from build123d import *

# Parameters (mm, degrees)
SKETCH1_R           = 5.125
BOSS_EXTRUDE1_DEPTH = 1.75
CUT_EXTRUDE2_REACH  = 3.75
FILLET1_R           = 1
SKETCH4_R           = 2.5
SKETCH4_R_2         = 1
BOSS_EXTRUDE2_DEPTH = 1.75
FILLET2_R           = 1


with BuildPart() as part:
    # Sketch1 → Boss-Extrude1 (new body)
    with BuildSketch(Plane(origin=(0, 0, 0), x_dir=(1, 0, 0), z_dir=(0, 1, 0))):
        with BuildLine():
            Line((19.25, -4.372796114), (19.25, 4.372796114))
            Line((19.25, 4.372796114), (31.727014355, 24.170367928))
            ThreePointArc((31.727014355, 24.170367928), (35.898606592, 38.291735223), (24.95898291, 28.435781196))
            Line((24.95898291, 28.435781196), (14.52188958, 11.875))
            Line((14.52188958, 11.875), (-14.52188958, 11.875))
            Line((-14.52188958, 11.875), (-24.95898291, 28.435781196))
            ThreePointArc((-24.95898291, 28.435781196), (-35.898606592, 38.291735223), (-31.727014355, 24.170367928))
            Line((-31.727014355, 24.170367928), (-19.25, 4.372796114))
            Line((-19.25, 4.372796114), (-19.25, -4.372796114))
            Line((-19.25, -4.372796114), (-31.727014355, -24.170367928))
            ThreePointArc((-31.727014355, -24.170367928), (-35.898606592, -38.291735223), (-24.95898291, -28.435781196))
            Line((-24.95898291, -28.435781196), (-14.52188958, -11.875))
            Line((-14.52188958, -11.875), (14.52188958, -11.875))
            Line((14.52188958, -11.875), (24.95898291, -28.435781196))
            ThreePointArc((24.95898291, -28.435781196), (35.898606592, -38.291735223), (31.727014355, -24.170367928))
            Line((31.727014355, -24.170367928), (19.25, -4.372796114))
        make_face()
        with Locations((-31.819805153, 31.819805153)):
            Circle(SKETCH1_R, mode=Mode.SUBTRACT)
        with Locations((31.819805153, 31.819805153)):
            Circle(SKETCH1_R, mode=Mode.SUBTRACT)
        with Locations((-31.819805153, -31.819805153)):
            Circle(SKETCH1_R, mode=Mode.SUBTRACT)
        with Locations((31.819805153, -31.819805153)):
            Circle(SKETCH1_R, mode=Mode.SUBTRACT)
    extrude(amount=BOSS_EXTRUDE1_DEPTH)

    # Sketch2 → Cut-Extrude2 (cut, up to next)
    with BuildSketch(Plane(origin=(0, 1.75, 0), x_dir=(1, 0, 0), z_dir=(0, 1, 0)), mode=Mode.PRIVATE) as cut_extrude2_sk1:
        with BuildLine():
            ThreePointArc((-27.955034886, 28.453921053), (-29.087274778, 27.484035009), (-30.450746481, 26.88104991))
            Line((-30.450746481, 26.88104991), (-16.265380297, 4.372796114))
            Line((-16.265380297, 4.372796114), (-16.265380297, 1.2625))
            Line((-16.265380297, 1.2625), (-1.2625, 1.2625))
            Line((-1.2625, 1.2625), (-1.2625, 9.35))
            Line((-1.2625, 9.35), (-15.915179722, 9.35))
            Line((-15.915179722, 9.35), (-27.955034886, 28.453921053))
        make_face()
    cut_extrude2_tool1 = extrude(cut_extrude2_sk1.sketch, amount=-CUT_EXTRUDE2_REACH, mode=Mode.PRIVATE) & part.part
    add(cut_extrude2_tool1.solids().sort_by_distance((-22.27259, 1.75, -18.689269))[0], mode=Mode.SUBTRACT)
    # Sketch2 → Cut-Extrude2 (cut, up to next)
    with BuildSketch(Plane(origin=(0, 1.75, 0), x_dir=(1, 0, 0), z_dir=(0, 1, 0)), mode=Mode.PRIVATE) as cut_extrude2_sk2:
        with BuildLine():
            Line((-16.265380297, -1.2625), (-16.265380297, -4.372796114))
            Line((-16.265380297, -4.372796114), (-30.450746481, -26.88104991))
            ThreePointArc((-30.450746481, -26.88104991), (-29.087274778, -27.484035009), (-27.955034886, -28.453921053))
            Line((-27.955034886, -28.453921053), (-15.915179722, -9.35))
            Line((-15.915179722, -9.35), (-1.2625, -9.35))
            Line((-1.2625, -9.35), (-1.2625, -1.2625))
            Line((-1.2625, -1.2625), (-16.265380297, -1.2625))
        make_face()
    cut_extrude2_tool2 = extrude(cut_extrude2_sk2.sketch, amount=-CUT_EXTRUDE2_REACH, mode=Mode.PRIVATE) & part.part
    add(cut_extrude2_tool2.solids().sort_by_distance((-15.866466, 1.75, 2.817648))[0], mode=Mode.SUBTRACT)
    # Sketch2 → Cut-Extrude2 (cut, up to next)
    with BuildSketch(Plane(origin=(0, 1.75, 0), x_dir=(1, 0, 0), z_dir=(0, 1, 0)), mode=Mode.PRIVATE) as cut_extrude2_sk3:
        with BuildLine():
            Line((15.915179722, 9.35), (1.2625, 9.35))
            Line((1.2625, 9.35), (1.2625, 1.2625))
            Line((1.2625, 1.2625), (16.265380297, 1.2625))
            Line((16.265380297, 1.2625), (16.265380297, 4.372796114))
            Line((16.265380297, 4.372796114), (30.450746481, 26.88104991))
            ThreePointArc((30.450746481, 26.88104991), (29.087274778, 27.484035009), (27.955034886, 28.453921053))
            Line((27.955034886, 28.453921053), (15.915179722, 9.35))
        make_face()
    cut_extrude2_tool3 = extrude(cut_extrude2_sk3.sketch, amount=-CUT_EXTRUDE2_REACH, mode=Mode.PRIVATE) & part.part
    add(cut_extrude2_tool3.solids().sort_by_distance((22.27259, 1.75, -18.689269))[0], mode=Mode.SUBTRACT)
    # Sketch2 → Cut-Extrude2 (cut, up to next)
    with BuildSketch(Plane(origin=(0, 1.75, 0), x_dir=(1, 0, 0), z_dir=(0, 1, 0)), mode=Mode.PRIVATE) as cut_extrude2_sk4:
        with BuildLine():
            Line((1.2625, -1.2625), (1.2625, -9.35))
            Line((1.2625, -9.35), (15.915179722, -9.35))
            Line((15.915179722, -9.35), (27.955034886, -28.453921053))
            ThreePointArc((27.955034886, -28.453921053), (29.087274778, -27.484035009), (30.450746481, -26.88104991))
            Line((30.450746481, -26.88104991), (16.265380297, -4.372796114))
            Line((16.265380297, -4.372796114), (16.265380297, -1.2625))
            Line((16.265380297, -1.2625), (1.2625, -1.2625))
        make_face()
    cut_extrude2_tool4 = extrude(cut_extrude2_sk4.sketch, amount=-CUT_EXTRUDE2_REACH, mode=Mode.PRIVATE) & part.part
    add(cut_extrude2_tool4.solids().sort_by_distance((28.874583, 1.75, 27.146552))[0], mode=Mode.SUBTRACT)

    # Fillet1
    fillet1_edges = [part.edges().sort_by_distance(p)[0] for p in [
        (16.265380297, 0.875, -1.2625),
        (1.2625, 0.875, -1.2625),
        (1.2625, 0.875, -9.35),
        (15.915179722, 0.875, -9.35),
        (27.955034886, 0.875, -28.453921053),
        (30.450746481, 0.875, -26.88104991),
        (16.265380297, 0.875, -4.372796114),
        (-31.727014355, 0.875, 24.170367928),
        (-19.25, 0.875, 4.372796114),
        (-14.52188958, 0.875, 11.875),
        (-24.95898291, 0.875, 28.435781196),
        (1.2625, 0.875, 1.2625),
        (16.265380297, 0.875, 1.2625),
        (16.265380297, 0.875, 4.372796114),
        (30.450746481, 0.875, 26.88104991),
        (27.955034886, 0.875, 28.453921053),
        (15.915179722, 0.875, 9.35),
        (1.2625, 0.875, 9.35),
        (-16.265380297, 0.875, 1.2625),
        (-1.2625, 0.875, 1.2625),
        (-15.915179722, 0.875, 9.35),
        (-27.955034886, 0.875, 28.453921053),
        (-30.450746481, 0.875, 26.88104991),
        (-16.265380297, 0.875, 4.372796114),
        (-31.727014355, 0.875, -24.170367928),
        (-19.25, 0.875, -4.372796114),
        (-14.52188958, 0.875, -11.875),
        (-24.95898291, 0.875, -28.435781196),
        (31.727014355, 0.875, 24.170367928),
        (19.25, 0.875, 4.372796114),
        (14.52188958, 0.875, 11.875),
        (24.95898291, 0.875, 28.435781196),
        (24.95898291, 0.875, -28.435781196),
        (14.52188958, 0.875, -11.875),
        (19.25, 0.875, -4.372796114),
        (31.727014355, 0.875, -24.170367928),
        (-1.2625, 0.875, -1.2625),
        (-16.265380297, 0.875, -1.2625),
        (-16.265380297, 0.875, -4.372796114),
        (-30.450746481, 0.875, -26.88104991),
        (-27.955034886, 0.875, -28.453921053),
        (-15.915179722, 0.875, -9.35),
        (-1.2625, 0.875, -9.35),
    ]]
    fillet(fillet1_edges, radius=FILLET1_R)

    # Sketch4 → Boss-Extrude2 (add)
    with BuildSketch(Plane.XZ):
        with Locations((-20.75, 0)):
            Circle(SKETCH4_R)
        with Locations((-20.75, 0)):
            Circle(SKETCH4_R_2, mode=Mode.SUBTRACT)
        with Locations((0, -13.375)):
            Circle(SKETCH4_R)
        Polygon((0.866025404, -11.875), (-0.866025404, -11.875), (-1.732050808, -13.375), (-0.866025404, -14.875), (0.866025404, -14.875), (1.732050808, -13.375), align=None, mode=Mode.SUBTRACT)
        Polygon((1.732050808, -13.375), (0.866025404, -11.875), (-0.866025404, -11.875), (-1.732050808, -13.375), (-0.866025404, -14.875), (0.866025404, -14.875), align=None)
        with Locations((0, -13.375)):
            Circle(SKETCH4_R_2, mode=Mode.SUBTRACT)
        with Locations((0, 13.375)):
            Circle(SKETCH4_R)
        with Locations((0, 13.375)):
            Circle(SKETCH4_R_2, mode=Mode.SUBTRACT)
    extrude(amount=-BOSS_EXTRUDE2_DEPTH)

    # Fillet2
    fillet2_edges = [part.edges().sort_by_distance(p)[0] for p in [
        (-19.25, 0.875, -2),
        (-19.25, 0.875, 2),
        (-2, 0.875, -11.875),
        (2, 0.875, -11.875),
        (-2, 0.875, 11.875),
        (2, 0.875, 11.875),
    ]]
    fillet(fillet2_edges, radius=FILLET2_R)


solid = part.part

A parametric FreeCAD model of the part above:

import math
import FreeCAD as App
import Part
import Sketcher
Q = App.Units.Quantity


def edges_at(feature, points):
    """Names of the edges that pass closest to the given points."""
    edges = feature.Shape.Edges
    near = lambda p: min(range(len(edges)), key=lambda i: edges[i].distToShape(Part.Vertex(*p))[0])
    return sorted({f"Edge{near(p) + 1}" for p in points})

doc = App.newDocument("Part")
body = doc.addObject("PartDesign::Body", "Body")

# Sketch on XZ plane
sketch1 = body.newObject("Sketcher::SketchObject", "Sketch")
sketch1.AttachmentSupport = (doc.getObject("XZ_Plane"), [""])
sketch1.MapMode = "FlatFace"
sketch1.addGeometry([
    Part.LineSegment(App.Vector(19.25, 4.372796, 0), App.Vector(19.25, -4.372796, 0)),  # 0
    Part.LineSegment(App.Vector(19.25, -4.372796, 0), App.Vector(31.727014, -24.170368, 0)),  # 1
    Part.ArcOfCircle(Part.Circle(App.Vector(31.819805, -31.819805, 0), App.Vector(0, 0, 1), 7.65), math.radians(153.745695), math.radians(450.694987)),  # 2
    Part.LineSegment(App.Vector(24.958983, -28.435781, 0), App.Vector(14.52189, -11.875, 0)),  # 3
    Part.LineSegment(App.Vector(14.52189, -11.875, 0), App.Vector(-14.52189, -11.875, 0)),  # 4
    Part.LineSegment(App.Vector(-14.52189, -11.875, 0), App.Vector(-24.958983, -28.435781, 0)),  # 5
    Part.ArcOfCircle(Part.Circle(App.Vector(-31.819805, -31.819805, 0), App.Vector(0, 0, 1), 7.65), math.radians(89.305013), math.radians(386.254305)),  # 6
    Part.LineSegment(App.Vector(-31.727014, -24.170368, 0), App.Vector(-19.25, -4.372796, 0)),  # 7
    Part.LineSegment(App.Vector(-19.25, -4.372796, 0), App.Vector(-19.25, 4.372796, 0)),  # 8
    Part.LineSegment(App.Vector(-19.25, 4.372796, 0), App.Vector(-31.727014, 24.170368, 0)),  # 9
    Part.ArcOfCircle(Part.Circle(App.Vector(-31.819805, 31.819805, 0), App.Vector(0, 0, 1), 7.65), math.radians(-26.254305), math.radians(270.694987)),  # 10
    Part.LineSegment(App.Vector(-24.958983, 28.435781, 0), App.Vector(-14.52189, 11.875, 0)),  # 11
    Part.LineSegment(App.Vector(-14.52189, 11.875, 0), App.Vector(14.52189, 11.875, 0)),  # 12
    Part.LineSegment(App.Vector(14.52189, 11.875, 0), App.Vector(24.958983, 28.435781, 0)),  # 13
    Part.ArcOfCircle(Part.Circle(App.Vector(31.819805, 31.819805, 0), App.Vector(0, 0, 1), 7.65), math.radians(-90.694987), math.radians(206.254305)),  # 14
    Part.LineSegment(App.Vector(31.727014, 24.170368, 0), App.Vector(19.25, 4.372796, 0)),  # 15
    Part.Circle(App.Vector(-31.819805, 31.819805, 0), App.Vector(0, 0, 1), 5.125),  # 16
    Part.Circle(App.Vector(31.819805, 31.819805, 0), App.Vector(0, 0, 1), 5.125),  # 17
    Part.Circle(App.Vector(-31.819805, -31.819805, 0), App.Vector(0, 0, 1), 5.125),  # 18
    Part.Circle(App.Vector(31.819805, -31.819805, 0), App.Vector(0, 0, 1), 5.125),  # 19
], False)
sketch1.addConstraint([
    Sketcher.Constraint("Coincident", 0, 2, 1, 1),
    Sketcher.Constraint("Coincident", 1, 2, 2, 2),
    Sketcher.Constraint("Coincident", 2, 1, 3, 1),
    Sketcher.Constraint("Coincident", 3, 2, 4, 1),
    Sketcher.Constraint("Coincident", 4, 2, 5, 1),
    Sketcher.Constraint("Coincident", 5, 2, 6, 2),
    Sketcher.Constraint("Coincident", 6, 1, 7, 1),
    Sketcher.Constraint("Coincident", 7, 2, 8, 1),
    Sketcher.Constraint("Coincident", 8, 2, 9, 1),
    Sketcher.Constraint("Coincident", 9, 2, 10, 2),
    Sketcher.Constraint("Coincident", 10, 1, 11, 1),
    Sketcher.Constraint("Coincident", 11, 2, 12, 1),
    Sketcher.Constraint("Coincident", 12, 2, 13, 1),
    Sketcher.Constraint("Coincident", 13, 2, 14, 2),
    Sketcher.Constraint("Coincident", 14, 1, 15, 1),
    Sketcher.Constraint("Coincident", 15, 2, 0, 1),
    Sketcher.Constraint("Vertical", 0),
    Sketcher.Constraint("Horizontal", 4),
    Sketcher.Constraint("Vertical", 8),
    Sketcher.Constraint("Horizontal", 12),
    Sketcher.Constraint("Coincident", 16, 3, 10, 3),
    Sketcher.Constraint("Coincident", 17, 3, 14, 3),
    Sketcher.Constraint("Coincident", 18, 3, 6, 3),
    Sketcher.Constraint("Coincident", 19, 3, 2, 3),
    Sketcher.Constraint("Equal", 2, 6),
    Sketcher.Constraint("Equal", 6, 10),
    Sketcher.Constraint("Equal", 10, 14),
    Sketcher.Constraint("Equal", 16, 17),
    Sketcher.Constraint("Equal", 17, 18),
    Sketcher.Constraint("Equal", 18, 19),
    Sketcher.Constraint("Symmetric", 2, 3, 10, 3, -1, 1),
    Sketcher.Constraint("Symmetric", 6, 3, 14, 3, -1, 1),
    Sketcher.Constraint("Symmetric", 0, 2, 8, 2, -1, 1),
    Sketcher.Constraint("Symmetric", 3, 2, 11, 2, -1, 1),
    Sketcher.Constraint("Symmetric", 2, 3, 6, 3, -2),
    Sketcher.Constraint("Parallel", 1, 3),
    Sketcher.Constraint("Parallel", 5, 7),
    Sketcher.Constraint("Parallel", 3, 9),
    Sketcher.Constraint("Parallel", 9, 11),
    Sketcher.Constraint("Parallel", 7, 13),
    Sketcher.Constraint("Parallel", 13, 15),
    Sketcher.Constraint("Horizontal", 2, 1, 5, 2),
    Sketcher.Constraint("Horizontal", 1, 2, 6, 1),
    Sketcher.Constraint("Horizontal", 0, 2, 7, 2),
    Sketcher.Constraint("Horizontal", 10, 1, 13, 2),
    Sketcher.Constraint("Horizontal", 9, 2, 14, 1),
    Sketcher.Constraint("Diameter", 16, Q("10.25 mm")),
    Sketcher.Constraint("Radius", 2, Q("7.65 mm")),
    Sketcher.Constraint("DistanceX", -1, 1, 0, 2, Q("19.25 mm")),
    Sketcher.Constraint("DistanceY", 4, 2, 11, 2, Q("23.75 mm")),
    Sketcher.Constraint("Distance", 3, Q("19.575301 mm")),
    Sketcher.Constraint("DistanceX", 4, 2, 4, 1, Q("29.043779 mm")),
    Sketcher.Constraint("DistanceY", 0, 2, 17, 3, Q("36.192601 mm")),
    Sketcher.Constraint("DistanceY", 0, 2, 0, 1, Q("8.745592 mm")),
    Sketcher.Constraint("DistanceY", 2, 1, -1, 1, Q("28.435781 mm")),
])
pad1 = body.newObject("PartDesign::Pad", "Pad")
pad1.Profile = sketch1
pad1.Length = 1.75
pad1.Reversed = True

# Sketch on XZ plane
sketch2 = body.newObject("Sketcher::SketchObject", "Sketch001")
sketch2.AttachmentSupport = (doc.getObject("XZ_Plane"), [""])
sketch2.MapMode = "FlatFace"
sketch2.AttachmentOffset = App.Placement(App.Vector(0, 0, -1.75), App.Rotation())
sketch2.addGeometry([
    Part.ArcOfCircle(Part.Circle(App.Vector(-31.8, -31.8, 0), App.Vector(0, 0, 1), 5.1), math.radians(41), math.radians(75)),  # 0
    Part.LineSegment(App.Vector(-30.5, -26.9, 0), App.Vector(-16.3, -4.4, 0)),  # 1
    Part.LineSegment(App.Vector(-16.3, -4.4, 0), App.Vector(-16.3, -1.3, 0)),  # 2
    Part.LineSegment(App.Vector(-16.3, -1.3, 0), App.Vector(-1.3, -1.3, 0)),  # 3
    Part.LineSegment(App.Vector(-1.3, -1.3, 0), App.Vector(-1.3, -9.3, 0)),  # 4
    Part.LineSegment(App.Vector(-1.3, -9.3, 0), App.Vector(-15.9, -9.3, 0)),  # 5
    Part.LineSegment(App.Vector(-15.9, -9.3, 0), App.Vector(-28, -28.5, 0)),  # 6
], False)
sketch2.addConstraint([
    Sketcher.Constraint("Coincident", 0, 2, 1, 1),
    Sketcher.Constraint("Coincident", 1, 2, 2, 1),
    Sketcher.Constraint("Coincident", 2, 2, 3, 1),
    Sketcher.Constraint("Coincident", 3, 2, 4, 1),
    Sketcher.Constraint("Coincident", 4, 2, 5, 1),
    Sketcher.Constraint("Coincident", 5, 2, 6, 1),
    Sketcher.Constraint("Coincident", 6, 2, 0, 1),
    Sketcher.Constraint("Vertical", 2),
    Sketcher.Constraint("Horizontal", 3),
    Sketcher.Constraint("Vertical", 4),
    Sketcher.Constraint("Horizontal", 5),
    Sketcher.Constraint("Parallel", 1, 6),
    Sketcher.Constraint("Radius", 0, Q("5.125 mm")),
    Sketcher.Constraint("DistanceY", 4, 2, -1, 1, Q("9.35 mm")),
    Sketcher.Constraint("DistanceY", 4, 2, 4, 1, Q("8.0875 mm")),
    Sketcher.Constraint("DistanceX", 3, 1, 3, 2, Q("15.00288 mm")),
    Sketcher.Constraint("DistanceX", 5, 2, 5, 1, Q("14.65268 mm")),
    Sketcher.Constraint("DistanceX", 3, 2, -1, 1, Q("1.2625 mm")),
    Sketcher.Constraint("DistanceY", 2, 1, 2, 2, Q("3.110296 mm")),
    Sketcher.Constraint("DistanceY", 0, 2, -1, 1, Q("26.88105 mm")),
    Sketcher.Constraint("DistanceY", 6, 2, -1, 1, Q("28.453921 mm")),
    Sketcher.Constraint("DistanceX", 0, 3, 0, 2, Q("1.369059 mm")),
])
pocket1 = body.newObject("PartDesign::Pocket", "Pocket")
pocket1.Profile = sketch2
pocket1.Type = "UpToFirst"
pocket1.Reversed = True

# Sketch on XZ plane
sketch3 = body.newObject("Sketcher::SketchObject", "Sketch002")
sketch3.AttachmentSupport = (doc.getObject("XZ_Plane"), [""])
sketch3.MapMode = "FlatFace"
sketch3.AttachmentOffset = App.Placement(App.Vector(0, 0, -1.75), App.Rotation())
sketch3.addGeometry([
    Part.LineSegment(App.Vector(-16.3, 1.3, 0), App.Vector(-16.3, 4.4, 0)),  # 0
    Part.LineSegment(App.Vector(-16.3, 4.4, 0), App.Vector(-30.5, 26.9, 0)),  # 1
    Part.ArcOfCircle(Part.Circle(App.Vector(-31.8, 31.8, 0), App.Vector(0, 0, 1), 5.1), math.radians(-75), math.radians(-41)),  # 2
    Part.LineSegment(App.Vector(-28, 28.5, 0), App.Vector(-15.9, 9.3, 0)),  # 3
    Part.LineSegment(App.Vector(-15.9, 9.3, 0), App.Vector(-1.3, 9.3, 0)),  # 4
    Part.LineSegment(App.Vector(-1.3, 9.3, 0), App.Vector(-1.3, 1.3, 0)),  # 5
    Part.LineSegment(App.Vector(-1.3, 1.3, 0), App.Vector(-16.3, 1.3, 0)),  # 6
], False)
sketch3.addConstraint([
    Sketcher.Constraint("Coincident", 0, 2, 1, 1),
    Sketcher.Constraint("Coincident", 1, 2, 2, 1),
    Sketcher.Constraint("Coincident", 2, 2, 3, 1),
    Sketcher.Constraint("Coincident", 3, 2, 4, 1),
    Sketcher.Constraint("Coincident", 4, 2, 5, 1),
    Sketcher.Constraint("Coincident", 5, 2, 6, 1),
    Sketcher.Constraint("Coincident", 6, 2, 0, 1),
    Sketcher.Constraint("Vertical", 0),
    Sketcher.Constraint("Horizontal", 4),
    Sketcher.Constraint("Vertical", 5),
    Sketcher.Constraint("Horizontal", 6),
    Sketcher.Constraint("Parallel", 1, 3),
    Sketcher.Constraint("Radius", 2, Q("5.125 mm")),
    Sketcher.Constraint("DistanceY", -1, 1, 3, 2, Q("9.35 mm")),
    Sketcher.Constraint("DistanceY", 5, 2, 5, 1, Q("8.0875 mm")),
    Sketcher.Constraint("DistanceX", 4, 1, 4, 2, Q("14.65268 mm")),
    Sketcher.Constraint("DistanceX", 6, 2, 6, 1, Q("15.00288 mm")),
    Sketcher.Constraint("DistanceX", 4, 2, -1, 1, Q("1.2625 mm")),
    Sketcher.Constraint("DistanceY", 0, 1, 0, 2, Q("3.110296 mm")),
    Sketcher.Constraint("DistanceY", -1, 1, 1, 2, Q("26.88105 mm")),
    Sketcher.Constraint("DistanceY", -1, 1, 2, 2, Q("28.453921 mm")),
    Sketcher.Constraint("DistanceY", 0, 2, 2, 3, Q("27.447009 mm")),
])
pocket2 = body.newObject("PartDesign::Pocket", "Pocket001")
pocket2.Profile = sketch3
pocket2.Type = "UpToFirst"
pocket2.Reversed = True

# Sketch on XZ plane
sketch4 = body.newObject("Sketcher::SketchObject", "Sketch003")
sketch4.AttachmentSupport = (doc.getObject("XZ_Plane"), [""])
sketch4.MapMode = "FlatFace"
sketch4.AttachmentOffset = App.Placement(App.Vector(0, 0, -1.75), App.Rotation())
sketch4.addGeometry([
    Part.LineSegment(App.Vector(15.9, -9.3, 0), App.Vector(1.3, -9.3, 0)),  # 0
    Part.LineSegment(App.Vector(1.3, -9.3, 0), App.Vector(1.3, -1.3, 0)),  # 1
    Part.LineSegment(App.Vector(1.3, -1.3, 0), App.Vector(16.3, -1.3, 0)),  # 2
    Part.LineSegment(App.Vector(16.3, -1.3, 0), App.Vector(16.3, -4.4, 0)),  # 3
    Part.LineSegment(App.Vector(16.3, -4.4, 0), App.Vector(30.5, -26.9, 0)),  # 4
    Part.ArcOfCircle(Part.Circle(App.Vector(31.8, -31.8, 0), App.Vector(0, 0, 1), 5.1), math.radians(105), math.radians(139)),  # 5
    Part.LineSegment(App.Vector(28, -28.5, 0), App.Vector(15.9, -9.3, 0)),  # 6
], False)
sketch4.addConstraint([
    Sketcher.Constraint("Coincident", 0, 2, 1, 1),
    Sketcher.Constraint("Coincident", 1, 2, 2, 1),
    Sketcher.Constraint("Coincident", 2, 2, 3, 1),
    Sketcher.Constraint("Coincident", 3, 2, 4, 1),
    Sketcher.Constraint("Coincident", 4, 2, 5, 1),
    Sketcher.Constraint("Coincident", 5, 2, 6, 1),
    Sketcher.Constraint("Coincident", 6, 2, 0, 1),
    Sketcher.Constraint("Horizontal", 0),
    Sketcher.Constraint("Vertical", 1),
    Sketcher.Constraint("Horizontal", 2),
    Sketcher.Constraint("Vertical", 3),
    Sketcher.Constraint("Parallel", 4, 6),
    Sketcher.Constraint("Radius", 5, Q("5.125 mm")),
    Sketcher.Constraint("DistanceY", 0, 2, -1, 1, Q("9.35 mm")),
    Sketcher.Constraint("DistanceY", 1, 1, 1, 2, Q("8.0875 mm")),
    Sketcher.Constraint("DistanceX", 0, 2, 0, 1, Q("14.65268 mm")),
    Sketcher.Constraint("DistanceX", 2, 1, 2, 2, Q("15.00288 mm")),
    Sketcher.Constraint("DistanceX", -1, 1, 0, 2, Q("1.2625 mm")),
    Sketcher.Constraint("DistanceY", 3, 2, 3, 1, Q("3.110296 mm")),
    Sketcher.Constraint("DistanceY", 4, 2, -1, 1, Q("26.88105 mm")),
    Sketcher.Constraint("DistanceY", 5, 2, -1, 1, Q("28.453921 mm")),
    Sketcher.Constraint("DistanceY", 5, 3, 3, 2, Q("27.447009 mm")),
])
pocket3 = body.newObject("PartDesign::Pocket", "Pocket002")
pocket3.Profile = sketch4
pocket3.Type = "UpToFirst"
pocket3.Reversed = True

# Sketch on XZ plane
sketch5 = body.newObject("Sketcher::SketchObject", "Sketch004")
sketch5.AttachmentSupport = (doc.getObject("XZ_Plane"), [""])
sketch5.MapMode = "FlatFace"
sketch5.AttachmentOffset = App.Placement(App.Vector(0, 0, -1.75), App.Rotation())
sketch5.addGeometry([
    Part.LineSegment(App.Vector(1.3, 1.3, 0), App.Vector(1.3, 9.3, 0)),  # 0
    Part.LineSegment(App.Vector(1.3, 9.3, 0), App.Vector(15.9, 9.3, 0)),  # 1
    Part.LineSegment(App.Vector(15.9, 9.3, 0), App.Vector(28, 28.5, 0)),  # 2
    Part.ArcOfCircle(Part.Circle(App.Vector(31.8, 31.8, 0), App.Vector(0, 0, 1), 5.1), math.radians(-139), math.radians(-105)),  # 3
    Part.LineSegment(App.Vector(30.5, 26.9, 0), App.Vector(16.3, 4.4, 0)),  # 4
    Part.LineSegment(App.Vector(16.3, 4.4, 0), App.Vector(16.3, 1.3, 0)),  # 5
    Part.LineSegment(App.Vector(16.3, 1.3, 0), App.Vector(1.3, 1.3, 0)),  # 6
], False)
sketch5.addConstraint([
    Sketcher.Constraint("Coincident", 0, 2, 1, 1),
    Sketcher.Constraint("Coincident", 1, 2, 2, 1),
    Sketcher.Constraint("Coincident", 2, 2, 3, 1),
    Sketcher.Constraint("Coincident", 3, 2, 4, 1),
    Sketcher.Constraint("Coincident", 4, 2, 5, 1),
    Sketcher.Constraint("Coincident", 5, 2, 6, 1),
    Sketcher.Constraint("Coincident", 6, 2, 0, 1),
    Sketcher.Constraint("Vertical", 0),
    Sketcher.Constraint("Horizontal", 1),
    Sketcher.Constraint("Vertical", 5),
    Sketcher.Constraint("Horizontal", 6),
    Sketcher.Constraint("Parallel", 2, 4),
    Sketcher.Constraint("Radius", 3, Q("5.125 mm")),
    Sketcher.Constraint("DistanceY", -1, 1, 0, 2, Q("9.35 mm")),
    Sketcher.Constraint("DistanceY", 0, 1, 0, 2, Q("8.0875 mm")),
    Sketcher.Constraint("DistanceX", 1, 1, 1, 2, Q("14.65268 mm")),
    Sketcher.Constraint("DistanceX", 6, 2, 6, 1, Q("15.00288 mm")),
    Sketcher.Constraint("DistanceX", -1, 1, 0, 2, Q("1.2625 mm")),
    Sketcher.Constraint("DistanceY", 5, 2, 5, 1, Q("3.110296 mm")),
    Sketcher.Constraint("DistanceY", -1, 1, 2, 2, Q("28.453921 mm")),
    Sketcher.Constraint("DistanceY", -1, 1, 3, 2, Q("26.88105 mm")),
    Sketcher.Constraint("DistanceX", 2, 2, 3, 3, Q("3.86477 mm")),
])
pocket4 = body.newObject("PartDesign::Pocket", "Pocket003")
pocket4.Profile = sketch5
pocket4.Type = "UpToFirst"
pocket4.Reversed = True
doc.recompute()

fillet = body.newObject("PartDesign::Fillet", "Fillet")
fillet.Base = (pocket4, edges_at(pocket4, [
    (16.265, 0.875, -1.262),
    (1.262, 0.875, -1.262),
    (1.262, 0.875, -9.35),
    (15.915, 0.875, -9.35),
    (27.955, 0.875, -28.454),
    (30.451, 0.875, -26.881),
    (16.265, 0.875, -4.373),
    (-31.727, 0.875, 24.17),
    (-19.25, 0.875, 4.373),
    (-14.522, 0.875, 11.875),
    (-24.959, 0.875, 28.436),
    (1.262, 0.875, 1.262),
    (16.265, 0.875, 1.262),
    (16.265, 0.875, 4.373),
    (30.451, 0.875, 26.881),
    (27.955, 0.875, 28.454),
    (15.915, 0.875, 9.35),
    (1.262, 0.875, 9.35),
    (-16.265, 0.875, 1.262),
    (-1.262, 0.875, 1.262),
    (-15.915, 0.875, 9.35),
    (-27.955, 0.875, 28.454),
    (-30.451, 0.875, 26.881),
    (-16.265, 0.875, 4.373),
    (-31.727, 0.875, -24.17),
    (-19.25, 0.875, -4.373),
    (-14.522, 0.875, -11.875),
    (-24.959, 0.875, -28.436),
    (31.727, 0.875, 24.17),
    (19.25, 0.875, 4.373),
    (14.522, 0.875, 11.875),
    (24.959, 0.875, 28.436),
    (24.959, 0.875, -28.436),
    (14.522, 0.875, -11.875),
    (19.25, 0.875, -4.373),
    (31.727, 0.875, -24.17),
    (-1.262, 0.875, -1.262),
    (-16.265, 0.875, -1.262),
    (-16.265, 0.875, -4.373),
    (-30.451, 0.875, -26.881),
    (-27.955, 0.875, -28.454),
    (-15.915, 0.875, -9.35),
    (-1.262, 0.875, -9.35),
]))
fillet.Radius = 1

# Sketch on XZ plane
sketch6 = body.newObject("Sketcher::SketchObject", "Sketch005")
sketch6.AttachmentSupport = (doc.getObject("XZ_Plane"), [""])
sketch6.MapMode = "FlatFace"
sketch6.addGeometry([
    Part.Circle(App.Vector(-20.8, 0, 0), App.Vector(0, 0, 1), 2.5),  # 0
    Part.Circle(App.Vector(-20.8, 0, 0), App.Vector(0, 0, 1), 1),  # 1
    Part.Circle(App.Vector(0, -13.4, 0), App.Vector(0, 0, 1), 2.5),  # 2
    Part.Circle(App.Vector(0, -13.4, 0), App.Vector(0, 0, 1), 1),  # 3
    Part.Circle(App.Vector(0, 13.4, 0), App.Vector(0, 0, 1), 2.5),  # 4
    Part.Circle(App.Vector(0, 13.4, 0), App.Vector(0, 0, 1), 1),  # 5
], False)
sketch6.addConstraint([
    Sketcher.Constraint("Coincident", 1, 3, 0, 3),
    Sketcher.Constraint("Coincident", 3, 3, 2, 3),
    Sketcher.Constraint("Coincident", 5, 3, 4, 3),
    Sketcher.Constraint("Equal", 0, 2),
    Sketcher.Constraint("Equal", 1, 3),
    Sketcher.Constraint("Equal", 2, 4),
    Sketcher.Constraint("Equal", 3, 5),
    Sketcher.Constraint("Symmetric", 2, 3, 4, 3, -1, 1),
    Sketcher.Constraint("PointOnObject", 0, 3, -1),
    Sketcher.Constraint("PointOnObject", 2, 3, -2),
    Sketcher.Constraint("Diameter", 0, Q("5 mm")),
    Sketcher.Constraint("Diameter", 1, Q("2 mm")),
    Sketcher.Constraint("DistanceX", 0, 3, -1, 1, Q("20.75 mm")),
    Sketcher.Constraint("DistanceY", 2, 3, 4, 3, Q("26.75 mm")),
])
pad2 = body.newObject("PartDesign::Pad", "Pad001")
pad2.Profile = sketch6
pad2.Length = 1.75
pad2.Reversed = True
doc.recompute()

fillet2 = body.newObject("PartDesign::Fillet", "Fillet001")
fillet2.Base = (pad2, edges_at(pad2, [
    (-19.25, 0.875, -2),
    (-19.25, 0.875, 2),
    (-2, 0.875, -11.875),
    (2, 0.875, -11.875),
    (-2, 0.875, 11.875),
    (2, 0.875, 11.875),
]))
fillet2.Radius = 1

doc.recompute()
